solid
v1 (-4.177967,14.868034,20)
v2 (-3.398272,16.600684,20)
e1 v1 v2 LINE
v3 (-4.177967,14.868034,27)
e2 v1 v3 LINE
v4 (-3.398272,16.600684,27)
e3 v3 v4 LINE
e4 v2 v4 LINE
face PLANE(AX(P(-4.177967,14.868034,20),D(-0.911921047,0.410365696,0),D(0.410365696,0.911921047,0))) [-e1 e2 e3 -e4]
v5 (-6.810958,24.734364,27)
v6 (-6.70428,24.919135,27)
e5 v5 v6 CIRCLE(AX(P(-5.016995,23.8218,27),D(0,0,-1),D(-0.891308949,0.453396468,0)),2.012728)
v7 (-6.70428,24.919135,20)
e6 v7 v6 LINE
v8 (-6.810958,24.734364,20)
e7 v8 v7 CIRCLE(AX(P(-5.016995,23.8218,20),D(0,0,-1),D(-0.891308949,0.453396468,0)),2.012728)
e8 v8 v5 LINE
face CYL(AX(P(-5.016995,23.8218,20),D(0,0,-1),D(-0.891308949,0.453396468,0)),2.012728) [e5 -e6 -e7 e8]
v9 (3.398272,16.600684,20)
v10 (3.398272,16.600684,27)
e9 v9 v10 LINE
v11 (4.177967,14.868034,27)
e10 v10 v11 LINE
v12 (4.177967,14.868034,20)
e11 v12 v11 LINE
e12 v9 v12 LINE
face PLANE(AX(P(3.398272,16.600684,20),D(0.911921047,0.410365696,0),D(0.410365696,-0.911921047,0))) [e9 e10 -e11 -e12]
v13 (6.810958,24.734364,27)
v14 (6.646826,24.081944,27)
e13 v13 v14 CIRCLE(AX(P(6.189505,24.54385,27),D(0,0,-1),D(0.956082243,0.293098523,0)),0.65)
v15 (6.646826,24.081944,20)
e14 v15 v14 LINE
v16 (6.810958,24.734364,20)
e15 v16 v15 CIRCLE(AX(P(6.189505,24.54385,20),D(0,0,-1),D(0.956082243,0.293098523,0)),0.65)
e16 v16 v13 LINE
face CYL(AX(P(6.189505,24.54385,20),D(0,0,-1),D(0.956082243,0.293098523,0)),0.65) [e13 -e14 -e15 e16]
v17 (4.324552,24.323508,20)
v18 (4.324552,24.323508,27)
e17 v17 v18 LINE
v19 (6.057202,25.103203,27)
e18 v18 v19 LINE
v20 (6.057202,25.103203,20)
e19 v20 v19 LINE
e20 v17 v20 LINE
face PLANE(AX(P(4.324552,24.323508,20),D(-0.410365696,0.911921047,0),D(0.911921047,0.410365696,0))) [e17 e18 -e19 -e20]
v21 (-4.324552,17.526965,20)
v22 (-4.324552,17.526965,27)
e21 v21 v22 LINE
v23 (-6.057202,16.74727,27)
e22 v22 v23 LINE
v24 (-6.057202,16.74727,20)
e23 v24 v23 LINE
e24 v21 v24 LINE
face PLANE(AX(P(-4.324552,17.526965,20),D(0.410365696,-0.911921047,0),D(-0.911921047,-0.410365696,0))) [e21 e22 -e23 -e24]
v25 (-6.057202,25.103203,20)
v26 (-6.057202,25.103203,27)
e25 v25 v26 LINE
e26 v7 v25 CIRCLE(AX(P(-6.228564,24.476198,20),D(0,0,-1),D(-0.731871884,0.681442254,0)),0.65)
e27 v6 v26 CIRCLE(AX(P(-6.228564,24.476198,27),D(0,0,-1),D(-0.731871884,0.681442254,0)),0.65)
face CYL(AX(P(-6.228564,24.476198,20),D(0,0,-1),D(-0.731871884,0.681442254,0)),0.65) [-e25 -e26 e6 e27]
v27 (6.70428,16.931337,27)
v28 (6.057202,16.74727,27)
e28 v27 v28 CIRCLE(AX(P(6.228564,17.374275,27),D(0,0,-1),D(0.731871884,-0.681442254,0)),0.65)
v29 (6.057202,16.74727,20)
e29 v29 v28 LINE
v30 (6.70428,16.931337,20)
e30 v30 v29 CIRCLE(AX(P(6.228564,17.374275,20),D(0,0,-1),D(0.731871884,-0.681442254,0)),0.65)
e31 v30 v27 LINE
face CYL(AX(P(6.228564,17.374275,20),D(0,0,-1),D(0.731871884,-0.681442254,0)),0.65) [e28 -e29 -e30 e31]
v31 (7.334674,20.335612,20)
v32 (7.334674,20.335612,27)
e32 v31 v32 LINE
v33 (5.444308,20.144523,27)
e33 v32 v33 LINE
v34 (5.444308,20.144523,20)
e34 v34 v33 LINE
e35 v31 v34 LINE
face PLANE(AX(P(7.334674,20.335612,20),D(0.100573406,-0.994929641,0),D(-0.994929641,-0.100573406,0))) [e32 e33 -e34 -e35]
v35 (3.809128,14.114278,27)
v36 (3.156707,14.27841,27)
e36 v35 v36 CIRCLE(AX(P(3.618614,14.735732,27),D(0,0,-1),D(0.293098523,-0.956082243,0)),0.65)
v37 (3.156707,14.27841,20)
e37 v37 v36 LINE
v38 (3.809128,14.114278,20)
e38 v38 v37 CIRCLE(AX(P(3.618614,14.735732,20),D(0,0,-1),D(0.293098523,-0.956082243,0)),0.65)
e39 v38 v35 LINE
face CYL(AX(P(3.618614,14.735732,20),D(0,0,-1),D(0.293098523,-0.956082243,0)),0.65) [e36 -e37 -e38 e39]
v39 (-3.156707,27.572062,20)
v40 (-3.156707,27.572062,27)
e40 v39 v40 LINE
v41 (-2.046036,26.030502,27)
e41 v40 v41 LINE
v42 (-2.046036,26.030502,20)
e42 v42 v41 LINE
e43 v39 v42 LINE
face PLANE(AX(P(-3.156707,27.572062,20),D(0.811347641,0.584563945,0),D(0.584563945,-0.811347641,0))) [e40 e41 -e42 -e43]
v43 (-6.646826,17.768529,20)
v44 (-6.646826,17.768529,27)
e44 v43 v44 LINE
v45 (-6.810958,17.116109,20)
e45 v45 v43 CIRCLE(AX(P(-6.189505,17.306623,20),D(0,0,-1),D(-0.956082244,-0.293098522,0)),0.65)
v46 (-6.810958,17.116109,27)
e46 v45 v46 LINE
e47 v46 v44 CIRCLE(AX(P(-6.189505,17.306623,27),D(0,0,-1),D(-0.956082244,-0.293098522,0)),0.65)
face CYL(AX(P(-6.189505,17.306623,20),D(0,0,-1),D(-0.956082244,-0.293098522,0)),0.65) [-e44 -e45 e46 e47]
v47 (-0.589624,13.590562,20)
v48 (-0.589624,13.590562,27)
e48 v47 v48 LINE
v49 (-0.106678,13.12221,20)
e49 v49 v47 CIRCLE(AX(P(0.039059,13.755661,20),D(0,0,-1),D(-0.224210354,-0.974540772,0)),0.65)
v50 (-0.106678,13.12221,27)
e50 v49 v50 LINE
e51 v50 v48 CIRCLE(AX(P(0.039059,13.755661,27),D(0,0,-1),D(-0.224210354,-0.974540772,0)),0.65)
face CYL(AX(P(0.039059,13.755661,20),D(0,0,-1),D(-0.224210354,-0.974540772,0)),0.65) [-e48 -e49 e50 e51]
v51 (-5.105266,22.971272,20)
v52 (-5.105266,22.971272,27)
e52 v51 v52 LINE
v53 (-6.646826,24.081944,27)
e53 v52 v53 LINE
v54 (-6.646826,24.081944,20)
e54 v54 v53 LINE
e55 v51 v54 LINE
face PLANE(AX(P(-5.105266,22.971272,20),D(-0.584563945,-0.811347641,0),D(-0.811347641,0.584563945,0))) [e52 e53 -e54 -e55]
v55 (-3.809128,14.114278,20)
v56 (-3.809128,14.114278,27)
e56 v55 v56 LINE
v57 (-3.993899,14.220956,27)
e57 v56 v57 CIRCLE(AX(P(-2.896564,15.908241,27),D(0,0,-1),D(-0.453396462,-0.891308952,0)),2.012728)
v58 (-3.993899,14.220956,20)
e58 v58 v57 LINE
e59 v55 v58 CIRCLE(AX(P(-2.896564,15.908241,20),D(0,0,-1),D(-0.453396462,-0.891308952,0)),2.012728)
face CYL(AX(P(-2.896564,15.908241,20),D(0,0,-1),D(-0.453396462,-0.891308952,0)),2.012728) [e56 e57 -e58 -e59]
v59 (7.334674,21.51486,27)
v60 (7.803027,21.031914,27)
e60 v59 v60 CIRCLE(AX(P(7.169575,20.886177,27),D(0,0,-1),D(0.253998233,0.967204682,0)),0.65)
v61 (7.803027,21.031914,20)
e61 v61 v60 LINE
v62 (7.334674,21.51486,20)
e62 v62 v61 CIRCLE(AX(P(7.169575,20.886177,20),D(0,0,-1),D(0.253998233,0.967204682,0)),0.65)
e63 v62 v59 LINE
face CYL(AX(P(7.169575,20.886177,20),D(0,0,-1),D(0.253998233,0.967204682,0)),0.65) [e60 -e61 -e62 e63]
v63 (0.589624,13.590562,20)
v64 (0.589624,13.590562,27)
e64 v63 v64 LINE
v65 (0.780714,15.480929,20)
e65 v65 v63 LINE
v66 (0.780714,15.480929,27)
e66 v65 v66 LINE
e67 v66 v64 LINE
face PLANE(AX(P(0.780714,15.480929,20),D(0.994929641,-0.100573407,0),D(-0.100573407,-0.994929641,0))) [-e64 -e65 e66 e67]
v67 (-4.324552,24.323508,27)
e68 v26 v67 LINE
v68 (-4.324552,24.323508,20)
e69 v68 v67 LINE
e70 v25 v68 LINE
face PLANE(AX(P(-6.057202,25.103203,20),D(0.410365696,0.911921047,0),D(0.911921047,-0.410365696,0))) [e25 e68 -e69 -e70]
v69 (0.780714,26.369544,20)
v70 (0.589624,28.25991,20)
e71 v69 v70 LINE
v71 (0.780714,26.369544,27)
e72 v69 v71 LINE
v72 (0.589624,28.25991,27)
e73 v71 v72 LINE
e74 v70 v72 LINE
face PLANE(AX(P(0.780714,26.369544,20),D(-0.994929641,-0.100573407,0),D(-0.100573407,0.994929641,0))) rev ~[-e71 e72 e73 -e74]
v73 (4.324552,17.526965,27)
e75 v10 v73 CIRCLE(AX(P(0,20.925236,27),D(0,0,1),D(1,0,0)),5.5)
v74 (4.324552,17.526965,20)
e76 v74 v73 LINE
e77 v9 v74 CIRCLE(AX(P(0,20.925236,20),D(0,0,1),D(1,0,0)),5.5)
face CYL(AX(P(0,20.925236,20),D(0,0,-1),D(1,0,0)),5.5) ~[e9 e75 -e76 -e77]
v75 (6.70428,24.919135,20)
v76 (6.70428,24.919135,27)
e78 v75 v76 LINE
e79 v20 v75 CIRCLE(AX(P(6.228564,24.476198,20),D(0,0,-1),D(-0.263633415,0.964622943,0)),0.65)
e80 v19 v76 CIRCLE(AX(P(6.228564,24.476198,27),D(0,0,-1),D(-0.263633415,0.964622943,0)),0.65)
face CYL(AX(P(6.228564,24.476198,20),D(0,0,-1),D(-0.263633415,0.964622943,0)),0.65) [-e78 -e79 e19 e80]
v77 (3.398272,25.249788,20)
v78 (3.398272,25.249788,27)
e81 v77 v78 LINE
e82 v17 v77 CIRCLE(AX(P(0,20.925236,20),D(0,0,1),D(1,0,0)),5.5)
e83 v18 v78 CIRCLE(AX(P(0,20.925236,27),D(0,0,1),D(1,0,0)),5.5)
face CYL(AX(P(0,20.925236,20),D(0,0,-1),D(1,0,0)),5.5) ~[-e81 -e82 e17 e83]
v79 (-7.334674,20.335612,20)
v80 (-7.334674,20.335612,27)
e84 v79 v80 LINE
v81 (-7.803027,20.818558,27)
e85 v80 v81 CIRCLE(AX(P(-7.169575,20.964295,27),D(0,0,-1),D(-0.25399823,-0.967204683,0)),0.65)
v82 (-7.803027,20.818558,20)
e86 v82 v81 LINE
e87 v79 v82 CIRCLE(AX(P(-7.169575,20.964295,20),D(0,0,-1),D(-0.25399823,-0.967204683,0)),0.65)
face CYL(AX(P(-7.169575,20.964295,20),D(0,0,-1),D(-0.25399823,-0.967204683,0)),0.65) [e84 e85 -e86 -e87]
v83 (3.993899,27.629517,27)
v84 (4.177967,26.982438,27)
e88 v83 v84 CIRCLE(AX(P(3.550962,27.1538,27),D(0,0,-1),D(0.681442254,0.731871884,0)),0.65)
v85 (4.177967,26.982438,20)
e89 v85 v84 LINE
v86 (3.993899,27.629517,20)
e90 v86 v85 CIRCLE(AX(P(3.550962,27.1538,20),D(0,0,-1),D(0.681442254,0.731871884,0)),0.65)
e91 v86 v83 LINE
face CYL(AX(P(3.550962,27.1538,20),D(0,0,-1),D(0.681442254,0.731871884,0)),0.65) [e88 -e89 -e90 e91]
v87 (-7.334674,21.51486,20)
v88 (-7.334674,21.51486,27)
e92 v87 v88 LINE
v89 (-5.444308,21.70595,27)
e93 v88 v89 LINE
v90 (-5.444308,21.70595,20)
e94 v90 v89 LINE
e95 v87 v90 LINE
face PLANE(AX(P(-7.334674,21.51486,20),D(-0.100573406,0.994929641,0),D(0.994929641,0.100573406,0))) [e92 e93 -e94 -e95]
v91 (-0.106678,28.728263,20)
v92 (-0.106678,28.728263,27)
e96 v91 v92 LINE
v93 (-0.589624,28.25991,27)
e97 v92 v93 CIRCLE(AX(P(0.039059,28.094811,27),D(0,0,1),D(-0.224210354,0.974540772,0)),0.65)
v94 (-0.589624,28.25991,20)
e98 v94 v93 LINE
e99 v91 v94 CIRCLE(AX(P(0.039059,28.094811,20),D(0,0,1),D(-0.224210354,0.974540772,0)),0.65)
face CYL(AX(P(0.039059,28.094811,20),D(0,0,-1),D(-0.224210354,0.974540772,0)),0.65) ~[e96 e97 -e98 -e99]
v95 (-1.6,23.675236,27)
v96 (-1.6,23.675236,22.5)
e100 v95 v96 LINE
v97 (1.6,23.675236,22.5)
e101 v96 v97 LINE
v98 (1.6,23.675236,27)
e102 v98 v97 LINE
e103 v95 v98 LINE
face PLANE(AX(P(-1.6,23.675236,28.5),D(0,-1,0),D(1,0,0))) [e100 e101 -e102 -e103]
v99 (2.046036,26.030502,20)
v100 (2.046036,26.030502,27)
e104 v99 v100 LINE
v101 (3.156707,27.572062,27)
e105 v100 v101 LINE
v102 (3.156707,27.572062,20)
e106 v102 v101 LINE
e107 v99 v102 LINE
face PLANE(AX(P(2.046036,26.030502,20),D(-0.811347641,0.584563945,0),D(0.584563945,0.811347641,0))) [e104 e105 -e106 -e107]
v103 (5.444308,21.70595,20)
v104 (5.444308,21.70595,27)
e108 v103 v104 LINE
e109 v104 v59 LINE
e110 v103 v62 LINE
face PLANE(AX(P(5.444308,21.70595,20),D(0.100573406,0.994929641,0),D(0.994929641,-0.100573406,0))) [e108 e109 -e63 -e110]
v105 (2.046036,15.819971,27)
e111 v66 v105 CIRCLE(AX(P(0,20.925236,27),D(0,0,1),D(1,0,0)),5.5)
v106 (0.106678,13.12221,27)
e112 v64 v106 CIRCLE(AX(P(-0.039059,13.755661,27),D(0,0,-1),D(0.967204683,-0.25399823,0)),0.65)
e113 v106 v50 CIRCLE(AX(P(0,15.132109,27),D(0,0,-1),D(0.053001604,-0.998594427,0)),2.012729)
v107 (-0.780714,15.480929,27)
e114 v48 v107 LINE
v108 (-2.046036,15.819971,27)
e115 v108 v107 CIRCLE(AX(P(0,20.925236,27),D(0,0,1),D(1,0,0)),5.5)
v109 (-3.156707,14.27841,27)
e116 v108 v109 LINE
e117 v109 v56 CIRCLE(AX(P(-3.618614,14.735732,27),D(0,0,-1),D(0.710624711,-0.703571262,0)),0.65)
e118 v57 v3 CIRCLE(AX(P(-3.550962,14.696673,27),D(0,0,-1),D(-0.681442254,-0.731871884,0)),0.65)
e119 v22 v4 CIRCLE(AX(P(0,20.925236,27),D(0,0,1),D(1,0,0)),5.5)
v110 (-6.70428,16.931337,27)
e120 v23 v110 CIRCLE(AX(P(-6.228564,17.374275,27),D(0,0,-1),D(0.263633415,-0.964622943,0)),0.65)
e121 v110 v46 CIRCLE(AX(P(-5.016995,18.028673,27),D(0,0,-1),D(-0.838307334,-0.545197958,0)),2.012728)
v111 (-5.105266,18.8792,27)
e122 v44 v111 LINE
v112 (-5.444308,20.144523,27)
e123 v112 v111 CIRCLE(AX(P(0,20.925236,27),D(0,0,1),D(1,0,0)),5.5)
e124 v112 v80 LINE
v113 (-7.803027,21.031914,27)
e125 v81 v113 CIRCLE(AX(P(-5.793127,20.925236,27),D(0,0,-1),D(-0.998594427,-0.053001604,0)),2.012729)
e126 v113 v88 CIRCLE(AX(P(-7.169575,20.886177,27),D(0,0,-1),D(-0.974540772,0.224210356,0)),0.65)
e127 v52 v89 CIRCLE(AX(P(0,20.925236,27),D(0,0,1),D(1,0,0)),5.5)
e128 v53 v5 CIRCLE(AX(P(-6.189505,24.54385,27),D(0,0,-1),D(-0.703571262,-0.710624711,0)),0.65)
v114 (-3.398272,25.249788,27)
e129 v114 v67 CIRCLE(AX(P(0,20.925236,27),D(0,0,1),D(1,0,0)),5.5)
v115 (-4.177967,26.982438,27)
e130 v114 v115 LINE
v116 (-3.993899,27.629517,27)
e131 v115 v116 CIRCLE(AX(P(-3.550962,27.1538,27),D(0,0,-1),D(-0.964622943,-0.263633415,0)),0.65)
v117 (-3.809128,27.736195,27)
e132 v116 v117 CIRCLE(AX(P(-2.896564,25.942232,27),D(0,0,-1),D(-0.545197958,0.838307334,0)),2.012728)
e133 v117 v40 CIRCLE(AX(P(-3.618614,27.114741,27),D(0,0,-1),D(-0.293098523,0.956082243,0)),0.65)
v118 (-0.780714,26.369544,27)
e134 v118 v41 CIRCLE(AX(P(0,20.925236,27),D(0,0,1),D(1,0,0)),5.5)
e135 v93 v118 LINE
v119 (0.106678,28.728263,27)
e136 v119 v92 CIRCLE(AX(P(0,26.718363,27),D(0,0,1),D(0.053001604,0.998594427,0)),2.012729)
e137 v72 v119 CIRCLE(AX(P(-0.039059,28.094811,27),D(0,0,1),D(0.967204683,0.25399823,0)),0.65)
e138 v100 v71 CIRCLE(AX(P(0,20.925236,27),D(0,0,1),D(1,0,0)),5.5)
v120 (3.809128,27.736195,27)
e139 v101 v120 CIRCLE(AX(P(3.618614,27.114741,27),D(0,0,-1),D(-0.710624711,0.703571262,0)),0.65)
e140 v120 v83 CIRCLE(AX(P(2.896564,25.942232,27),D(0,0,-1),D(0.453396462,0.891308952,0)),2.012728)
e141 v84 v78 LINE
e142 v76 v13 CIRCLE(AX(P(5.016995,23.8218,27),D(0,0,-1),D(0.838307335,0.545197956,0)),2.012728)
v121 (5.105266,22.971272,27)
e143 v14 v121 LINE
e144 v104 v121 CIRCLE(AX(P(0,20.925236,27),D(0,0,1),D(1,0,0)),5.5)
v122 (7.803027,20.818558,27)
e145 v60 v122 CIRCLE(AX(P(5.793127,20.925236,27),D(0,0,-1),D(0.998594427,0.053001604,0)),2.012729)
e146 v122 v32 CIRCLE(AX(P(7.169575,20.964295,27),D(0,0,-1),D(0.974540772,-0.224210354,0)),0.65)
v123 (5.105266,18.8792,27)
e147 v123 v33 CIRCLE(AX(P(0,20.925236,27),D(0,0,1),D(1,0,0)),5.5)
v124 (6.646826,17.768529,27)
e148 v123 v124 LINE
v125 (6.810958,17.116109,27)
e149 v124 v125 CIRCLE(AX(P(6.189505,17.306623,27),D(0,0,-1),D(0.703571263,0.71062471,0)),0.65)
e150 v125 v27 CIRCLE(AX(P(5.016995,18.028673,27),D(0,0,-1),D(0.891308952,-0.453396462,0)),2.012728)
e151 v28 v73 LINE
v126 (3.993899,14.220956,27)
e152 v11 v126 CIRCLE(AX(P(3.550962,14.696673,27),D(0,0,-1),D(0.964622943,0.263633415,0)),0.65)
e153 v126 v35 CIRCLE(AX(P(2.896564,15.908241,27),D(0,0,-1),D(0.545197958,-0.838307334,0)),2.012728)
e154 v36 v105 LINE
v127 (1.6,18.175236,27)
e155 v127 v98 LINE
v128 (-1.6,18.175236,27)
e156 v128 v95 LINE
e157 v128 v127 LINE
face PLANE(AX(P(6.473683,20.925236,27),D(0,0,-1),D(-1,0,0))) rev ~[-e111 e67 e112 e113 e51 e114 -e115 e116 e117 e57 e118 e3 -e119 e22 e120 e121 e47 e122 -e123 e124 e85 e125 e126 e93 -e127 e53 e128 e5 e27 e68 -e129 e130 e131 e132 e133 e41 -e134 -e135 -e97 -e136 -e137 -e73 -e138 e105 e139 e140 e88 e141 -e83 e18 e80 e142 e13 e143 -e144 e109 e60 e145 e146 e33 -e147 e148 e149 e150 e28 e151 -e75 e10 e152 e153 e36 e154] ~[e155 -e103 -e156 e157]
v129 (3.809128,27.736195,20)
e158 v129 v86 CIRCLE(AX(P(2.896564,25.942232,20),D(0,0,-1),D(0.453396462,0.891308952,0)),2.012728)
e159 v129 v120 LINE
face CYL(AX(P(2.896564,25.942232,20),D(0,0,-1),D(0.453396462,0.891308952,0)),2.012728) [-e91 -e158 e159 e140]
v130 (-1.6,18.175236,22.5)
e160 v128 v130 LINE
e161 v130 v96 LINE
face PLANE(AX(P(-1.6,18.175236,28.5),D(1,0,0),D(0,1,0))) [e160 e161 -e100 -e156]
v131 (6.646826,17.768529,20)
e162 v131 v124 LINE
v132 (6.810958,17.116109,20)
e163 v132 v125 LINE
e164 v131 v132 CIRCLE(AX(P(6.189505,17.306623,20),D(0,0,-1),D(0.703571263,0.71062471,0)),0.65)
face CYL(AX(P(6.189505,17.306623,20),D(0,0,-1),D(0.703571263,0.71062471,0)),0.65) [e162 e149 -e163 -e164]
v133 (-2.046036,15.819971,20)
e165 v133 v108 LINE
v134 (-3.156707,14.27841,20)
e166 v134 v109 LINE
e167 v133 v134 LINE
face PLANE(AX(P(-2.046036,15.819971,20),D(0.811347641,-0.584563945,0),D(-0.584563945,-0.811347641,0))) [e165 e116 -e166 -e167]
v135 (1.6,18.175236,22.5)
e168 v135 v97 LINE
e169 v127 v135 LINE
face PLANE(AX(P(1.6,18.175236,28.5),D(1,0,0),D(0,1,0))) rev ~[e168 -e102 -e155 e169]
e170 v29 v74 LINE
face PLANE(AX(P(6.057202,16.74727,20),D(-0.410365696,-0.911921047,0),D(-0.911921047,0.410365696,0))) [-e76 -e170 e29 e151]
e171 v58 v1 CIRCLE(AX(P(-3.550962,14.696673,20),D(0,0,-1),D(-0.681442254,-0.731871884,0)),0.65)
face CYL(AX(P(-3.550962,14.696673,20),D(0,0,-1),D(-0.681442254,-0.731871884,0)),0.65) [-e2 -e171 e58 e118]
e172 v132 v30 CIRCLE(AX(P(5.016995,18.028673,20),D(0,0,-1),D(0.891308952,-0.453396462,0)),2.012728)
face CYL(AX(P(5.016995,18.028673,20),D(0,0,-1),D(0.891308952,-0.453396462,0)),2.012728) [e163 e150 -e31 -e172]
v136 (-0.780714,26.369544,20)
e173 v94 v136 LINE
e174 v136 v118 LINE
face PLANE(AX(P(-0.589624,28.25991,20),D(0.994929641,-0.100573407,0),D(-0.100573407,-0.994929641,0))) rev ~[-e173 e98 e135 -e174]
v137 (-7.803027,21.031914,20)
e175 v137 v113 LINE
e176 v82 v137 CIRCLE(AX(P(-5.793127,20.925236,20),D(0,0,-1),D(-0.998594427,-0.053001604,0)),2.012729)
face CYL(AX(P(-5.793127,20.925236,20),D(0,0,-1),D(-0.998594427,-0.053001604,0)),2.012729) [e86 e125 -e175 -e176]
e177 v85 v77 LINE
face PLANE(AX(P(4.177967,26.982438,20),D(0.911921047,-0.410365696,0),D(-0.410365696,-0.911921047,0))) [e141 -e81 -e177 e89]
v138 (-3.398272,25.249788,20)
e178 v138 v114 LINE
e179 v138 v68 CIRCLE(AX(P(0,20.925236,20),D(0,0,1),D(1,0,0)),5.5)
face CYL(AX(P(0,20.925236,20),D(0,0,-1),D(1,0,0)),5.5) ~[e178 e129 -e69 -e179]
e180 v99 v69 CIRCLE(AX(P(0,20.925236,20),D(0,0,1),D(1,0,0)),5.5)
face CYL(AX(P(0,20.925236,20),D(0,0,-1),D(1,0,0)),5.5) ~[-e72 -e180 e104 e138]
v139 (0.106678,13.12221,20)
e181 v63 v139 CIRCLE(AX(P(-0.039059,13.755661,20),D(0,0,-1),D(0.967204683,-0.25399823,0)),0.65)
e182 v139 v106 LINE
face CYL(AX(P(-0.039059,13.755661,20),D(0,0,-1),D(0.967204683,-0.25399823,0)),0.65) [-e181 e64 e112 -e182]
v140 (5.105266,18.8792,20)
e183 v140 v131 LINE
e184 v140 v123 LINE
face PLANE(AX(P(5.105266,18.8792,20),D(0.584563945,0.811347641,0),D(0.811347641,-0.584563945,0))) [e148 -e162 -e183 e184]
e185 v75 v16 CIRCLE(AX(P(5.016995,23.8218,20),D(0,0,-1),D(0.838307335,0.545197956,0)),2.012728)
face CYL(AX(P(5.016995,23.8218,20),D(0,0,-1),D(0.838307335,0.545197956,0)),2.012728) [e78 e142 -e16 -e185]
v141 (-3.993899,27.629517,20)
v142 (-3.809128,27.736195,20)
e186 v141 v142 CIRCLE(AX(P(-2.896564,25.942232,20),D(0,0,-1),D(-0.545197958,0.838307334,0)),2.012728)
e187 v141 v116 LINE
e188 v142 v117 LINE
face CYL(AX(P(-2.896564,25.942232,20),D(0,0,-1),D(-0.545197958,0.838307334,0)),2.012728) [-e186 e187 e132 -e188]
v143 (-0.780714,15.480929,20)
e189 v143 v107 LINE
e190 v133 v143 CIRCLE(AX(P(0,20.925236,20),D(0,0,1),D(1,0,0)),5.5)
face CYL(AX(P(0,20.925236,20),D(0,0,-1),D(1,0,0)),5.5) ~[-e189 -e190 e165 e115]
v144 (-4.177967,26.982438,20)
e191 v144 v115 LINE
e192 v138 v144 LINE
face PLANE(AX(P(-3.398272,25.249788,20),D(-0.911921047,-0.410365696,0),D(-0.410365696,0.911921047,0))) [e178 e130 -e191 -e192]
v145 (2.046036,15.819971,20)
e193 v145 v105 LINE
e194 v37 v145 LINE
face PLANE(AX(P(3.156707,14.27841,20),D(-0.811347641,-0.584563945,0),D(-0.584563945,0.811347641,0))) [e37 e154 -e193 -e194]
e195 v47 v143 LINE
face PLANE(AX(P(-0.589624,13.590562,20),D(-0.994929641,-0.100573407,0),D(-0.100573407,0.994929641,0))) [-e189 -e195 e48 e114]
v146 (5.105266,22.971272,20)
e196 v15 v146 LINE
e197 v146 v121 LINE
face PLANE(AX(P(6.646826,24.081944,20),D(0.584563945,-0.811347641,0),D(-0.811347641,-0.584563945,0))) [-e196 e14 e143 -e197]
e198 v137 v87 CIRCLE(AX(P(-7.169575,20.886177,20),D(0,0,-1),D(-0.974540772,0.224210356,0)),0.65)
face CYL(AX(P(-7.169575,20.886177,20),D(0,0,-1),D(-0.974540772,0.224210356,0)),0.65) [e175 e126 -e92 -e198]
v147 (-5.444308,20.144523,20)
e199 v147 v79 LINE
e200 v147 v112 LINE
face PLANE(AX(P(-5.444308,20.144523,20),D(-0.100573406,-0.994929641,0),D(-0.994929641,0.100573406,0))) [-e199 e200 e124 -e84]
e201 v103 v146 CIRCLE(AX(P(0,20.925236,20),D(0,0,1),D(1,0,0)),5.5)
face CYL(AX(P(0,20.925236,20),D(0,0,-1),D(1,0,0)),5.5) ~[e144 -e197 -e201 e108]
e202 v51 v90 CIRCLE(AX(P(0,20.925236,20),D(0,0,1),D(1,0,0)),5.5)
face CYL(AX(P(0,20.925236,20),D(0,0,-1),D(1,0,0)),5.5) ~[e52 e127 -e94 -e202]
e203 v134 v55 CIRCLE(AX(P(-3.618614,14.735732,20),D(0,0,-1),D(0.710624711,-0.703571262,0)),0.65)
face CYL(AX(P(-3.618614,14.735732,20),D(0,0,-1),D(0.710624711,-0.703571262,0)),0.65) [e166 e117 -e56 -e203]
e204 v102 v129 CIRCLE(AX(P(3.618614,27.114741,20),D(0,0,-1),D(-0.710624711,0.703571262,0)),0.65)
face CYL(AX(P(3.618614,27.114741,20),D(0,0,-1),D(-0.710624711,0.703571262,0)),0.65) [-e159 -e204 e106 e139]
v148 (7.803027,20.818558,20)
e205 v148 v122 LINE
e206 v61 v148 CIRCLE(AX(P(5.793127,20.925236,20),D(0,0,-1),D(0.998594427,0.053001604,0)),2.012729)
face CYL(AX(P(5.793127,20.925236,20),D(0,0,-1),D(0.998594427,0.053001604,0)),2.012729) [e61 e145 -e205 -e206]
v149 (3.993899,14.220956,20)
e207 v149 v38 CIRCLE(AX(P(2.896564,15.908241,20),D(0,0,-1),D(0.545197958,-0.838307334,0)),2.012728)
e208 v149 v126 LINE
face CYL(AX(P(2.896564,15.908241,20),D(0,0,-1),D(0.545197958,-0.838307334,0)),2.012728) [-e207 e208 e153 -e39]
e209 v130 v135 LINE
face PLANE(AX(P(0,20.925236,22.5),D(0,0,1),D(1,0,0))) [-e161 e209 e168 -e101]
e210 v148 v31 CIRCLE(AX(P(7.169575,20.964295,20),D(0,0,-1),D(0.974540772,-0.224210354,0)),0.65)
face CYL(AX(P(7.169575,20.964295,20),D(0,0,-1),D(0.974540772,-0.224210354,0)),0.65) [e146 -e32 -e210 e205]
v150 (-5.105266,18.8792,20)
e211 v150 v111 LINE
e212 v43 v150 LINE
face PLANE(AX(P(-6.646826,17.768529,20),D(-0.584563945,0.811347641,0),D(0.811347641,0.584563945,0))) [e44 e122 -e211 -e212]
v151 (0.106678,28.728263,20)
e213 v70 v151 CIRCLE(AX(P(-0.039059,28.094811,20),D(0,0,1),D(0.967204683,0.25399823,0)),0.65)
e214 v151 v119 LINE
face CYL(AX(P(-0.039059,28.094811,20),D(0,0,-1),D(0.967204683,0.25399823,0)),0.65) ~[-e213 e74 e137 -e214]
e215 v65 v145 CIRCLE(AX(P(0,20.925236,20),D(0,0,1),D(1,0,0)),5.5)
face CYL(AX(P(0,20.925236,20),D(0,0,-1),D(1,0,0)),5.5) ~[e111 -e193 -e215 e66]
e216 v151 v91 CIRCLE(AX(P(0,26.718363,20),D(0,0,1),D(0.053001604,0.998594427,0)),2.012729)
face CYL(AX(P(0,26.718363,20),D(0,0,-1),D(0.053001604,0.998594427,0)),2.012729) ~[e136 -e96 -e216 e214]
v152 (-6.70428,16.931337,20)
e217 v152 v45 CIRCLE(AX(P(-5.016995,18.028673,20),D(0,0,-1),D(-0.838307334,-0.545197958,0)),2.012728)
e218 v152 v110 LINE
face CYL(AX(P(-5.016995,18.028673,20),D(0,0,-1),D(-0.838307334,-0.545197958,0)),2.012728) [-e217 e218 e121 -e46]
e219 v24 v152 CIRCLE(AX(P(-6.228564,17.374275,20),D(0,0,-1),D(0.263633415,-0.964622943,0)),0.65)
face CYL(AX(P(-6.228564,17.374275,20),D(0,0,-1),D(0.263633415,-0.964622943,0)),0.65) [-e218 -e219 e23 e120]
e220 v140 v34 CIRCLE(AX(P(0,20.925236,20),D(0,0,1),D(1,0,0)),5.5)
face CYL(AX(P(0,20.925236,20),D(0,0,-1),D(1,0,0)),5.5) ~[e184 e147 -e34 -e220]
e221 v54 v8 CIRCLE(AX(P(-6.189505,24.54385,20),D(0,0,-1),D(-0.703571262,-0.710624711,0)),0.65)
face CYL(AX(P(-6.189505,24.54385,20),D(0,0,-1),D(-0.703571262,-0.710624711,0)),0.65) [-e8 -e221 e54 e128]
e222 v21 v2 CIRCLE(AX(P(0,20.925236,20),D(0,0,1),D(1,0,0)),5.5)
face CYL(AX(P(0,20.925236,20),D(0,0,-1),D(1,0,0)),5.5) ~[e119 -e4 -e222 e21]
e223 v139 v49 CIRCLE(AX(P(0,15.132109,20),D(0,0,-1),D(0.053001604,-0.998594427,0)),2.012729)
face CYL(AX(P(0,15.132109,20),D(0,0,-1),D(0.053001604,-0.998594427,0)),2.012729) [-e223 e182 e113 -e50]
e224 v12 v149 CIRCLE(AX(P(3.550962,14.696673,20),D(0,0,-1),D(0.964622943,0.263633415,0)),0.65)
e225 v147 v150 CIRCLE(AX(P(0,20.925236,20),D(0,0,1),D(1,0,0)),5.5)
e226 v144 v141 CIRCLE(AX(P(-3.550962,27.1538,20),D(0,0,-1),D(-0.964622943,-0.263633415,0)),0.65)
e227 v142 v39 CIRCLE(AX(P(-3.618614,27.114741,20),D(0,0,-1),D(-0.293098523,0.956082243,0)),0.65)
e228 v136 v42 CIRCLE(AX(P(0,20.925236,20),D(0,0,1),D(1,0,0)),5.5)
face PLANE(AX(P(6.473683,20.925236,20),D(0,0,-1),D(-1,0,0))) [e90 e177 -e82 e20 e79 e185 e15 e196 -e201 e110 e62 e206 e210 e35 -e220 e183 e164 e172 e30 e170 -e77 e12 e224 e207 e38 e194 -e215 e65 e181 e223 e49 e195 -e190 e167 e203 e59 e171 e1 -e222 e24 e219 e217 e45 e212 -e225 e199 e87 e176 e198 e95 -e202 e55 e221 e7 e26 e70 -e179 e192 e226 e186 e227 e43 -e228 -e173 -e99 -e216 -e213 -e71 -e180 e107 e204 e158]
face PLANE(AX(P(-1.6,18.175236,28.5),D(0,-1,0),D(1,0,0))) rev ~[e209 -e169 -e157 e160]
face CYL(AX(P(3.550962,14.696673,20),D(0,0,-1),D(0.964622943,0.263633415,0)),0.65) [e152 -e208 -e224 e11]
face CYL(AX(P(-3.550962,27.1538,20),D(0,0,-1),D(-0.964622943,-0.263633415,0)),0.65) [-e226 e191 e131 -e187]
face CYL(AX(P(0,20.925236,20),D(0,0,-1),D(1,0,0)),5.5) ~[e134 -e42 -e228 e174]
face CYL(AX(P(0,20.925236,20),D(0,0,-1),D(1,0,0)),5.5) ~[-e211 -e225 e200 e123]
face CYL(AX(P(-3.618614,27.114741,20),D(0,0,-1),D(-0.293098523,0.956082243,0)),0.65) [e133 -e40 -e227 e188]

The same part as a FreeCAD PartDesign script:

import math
import FreeCAD as App
import Part
import Sketcher
from FreeCAD import Vector


def add_polygon(sketch, points):
    """Adds a closed chain of lines whose ends are joined by coincident constraints."""
    first, n = sketch.GeometryCount, len(points)
    for a, b in zip(points, points[1:] + points[:1]):
        sketch.addGeometry(Part.LineSegment(App.Vector(*a, 0), App.Vector(*b, 0)), False)
    for i in range(n):
        sketch.addConstraint(Sketcher.Constraint("Coincident", first + i, 2, first + (i + 1) % n, 1))

doc = App.newDocument("Part")
body = doc.addObject("PartDesign::Body", "Body")

sketch1 = body.newObject("Sketcher::SketchObject", "Sketch")
sketch1.AttachmentSupport = (doc.getObject("XY_Plane"), [""])
sketch1.MapMode = "FlatFace"
sketch1.AttachmentOffset = App.Placement(Vector(0, 0, 20), App.Rotation())
sketch1.addGeometry(Part.Circle(Vector(0, 21, 0), Vector(0, 0, 1), 6), False)
sketch1.addConstraint([
    Sketcher.Constraint("PointOnObject", 0, 3, -2),
    Sketcher.Constraint("Diameter", 0, 11.0),
    Sketcher.Constraint("DistanceY", -1, 1, 0, 3, 20.925236),
])
pad1 = body.newObject("PartDesign::Pad", "Pad")
pad1.Profile = sketch1
pad1.Length = 7

sketch2 = body.newObject("Sketcher::SketchObject", "Sketch001")
sketch2.AttachmentSupport = (doc.getObject("XY_Plane"), [""])
sketch2.MapMode = "FlatFace"
sketch2.AttachmentOffset = App.Placement(Vector(0, 0, 28.5), App.Rotation())
add_polygon(sketch2, [(-1.6, 23.7), (-1.6, 18.2), (1.6, 18.2), (1.6, 23.7)])
sketch2.addConstraint([
    Sketcher.Constraint("Vertical", 0),
    Sketcher.Constraint("Horizontal", 1),
    Sketcher.Constraint("Vertical", 2),
    Sketcher.Constraint("Horizontal", 3),
    Sketcher.Constraint("DistanceX", 1, 1, 1, 2, 3.2),
    Sketcher.Constraint("DistanceY", 0, 2, 0, 1, 5.5),
    Sketcher.Constraint("DistanceX", 0, 2, -1, 1, 1.6),
    Sketcher.Constraint("DistanceY", -1, 1, 0, 2, 18.175236),
])
pocket1 = body.newObject("PartDesign::Pocket", "Pocket")
pocket1.Profile = sketch2
pocket1.Length = 6

sketch3 = body.newObject("Sketcher::SketchObject", "Sketch002")
sketch3.AttachmentSupport = (doc.getObject("XY_Plane"), [""])
sketch3.MapMode = "FlatFace"
sketch3.AttachmentOffset = App.Placement(Vector(0, 0, 20), App.Rotation())
sketch3.addGeometry([
    Part.LineSegment(Vector(-0.59, 28.26, 0), Vector(-0.78, 26.37, 0)),
    Part.ArcOfCircle(Part.Circle(Vector(0, 20.93, 0), Vector(0, 0, 1), 5.5), math.radians(81.84), math.radians(98.16)),
    Part.LineSegment(Vector(0.78, 26.37, 0), Vector(0.59, 28.26, 0)),
    Part.ArcOfCircle(Part.Circle(Vector(-0.04, 28.09, 0), Vector(0, 0, 1), 0.65), math.radians(15), math.radians(77)),
    Part.ArcOfCircle(Part.Circle(Vector(0, 26.72, 0), Vector(0, 0, 1), 2.01), math.radians(86.96), math.radians(93.04)),
    Part.ArcOfCircle(Part.Circle(Vector(0.04, 28.09, 0), Vector(0, 0, 1), 0.65), math.radians(103), math.radians(165)),
    Part.LineSegment(Vector(3.4, 25.25, 0), Vector(4.18, 26.98, 0)),
    Part.ArcOfCircle(Part.Circle(Vector(3.55, 27.15, 0), Vector(0, 0, 1), 0.65), math.radians(-15), math.radians(47)),
    Part.ArcOfCircle(Part.Circle(Vector(2.9, 25.94, 0), Vector(0, 0, 1), 2.01), math.radians(56.96), math.radians(63.04)),
    Part.ArcOfCircle(Part.Circle(Vector(3.62, 27.11, 0), Vector(0, 0, 1), 0.65), math.radians(73), math.radians(135)),
    Part.LineSegment(Vector(3.16, 27.57, 0), Vector(2.05, 26.03, 0)),
    Part.ArcOfCircle(Part.Circle(Vector(0, 20.93, 0), Vector(0, 0, 1), 5.5), math.radians(51.84), math.radians(68.16)),
    Part.LineSegment(Vector(5.11, 22.97, 0), Vector(6.65, 24.08, 0)),
    Part.ArcOfCircle(Part.Circle(Vector(6.19, 24.54, 0), Vector(0, 0, 1), 0.65), math.radians(-45), math.radians(17)),
    Part.ArcOfCircle(Part.Circle(Vector(5.02, 23.82, 0), Vector(0, 0, 1), 2.01), math.radians(26.96), math.radians(33.04)),
    Part.ArcOfCircle(Part.Circle(Vector(6.23, 24.48, 0), Vector(0, 0, 1), 0.65), math.radians(43), math.radians(105)),
    Part.LineSegment(Vector(6.06, 25.1, 0), Vector(4.32, 24.32, 0)),
    Part.ArcOfCircle(Part.Circle(Vector(0, 20.93, 0), Vector(0, 0, 1), 5.5), math.radians(21.84), math.radians(38.16)),
    Part.LineSegment(Vector(5.44, 20.14, 0), Vector(7.33, 20.34, 0)),
    Part.ArcOfCircle(Part.Circle(Vector(7.17, 20.96, 0), Vector(0, 0, 1), 0.65), math.radians(-75), math.radians(-13)),
    Part.ArcOfCircle(Part.Circle(Vector(5.79, 20.93, 0), Vector(0, 0, 1), 2.01), math.radians(-3.04), math.radians(3.04)),
    Part.ArcOfCircle(Part.Circle(Vector(7.17, 20.89, 0), Vector(0, 0, 1), 0.65), math.radians(13), math.radians(75)),
    Part.LineSegment(Vector(7.33, 21.51, 0), Vector(5.44, 21.71, 0)),
    Part.ArcOfCircle(Part.Circle(Vector(0, 20.93, 0), Vector(0, 0, 1), 5.5), math.radians(-8.16), math.radians(8.16)),
    Part.LineSegment(Vector(4.32, 17.53, 0), Vector(6.06, 16.75, 0)),
    Part.ArcOfCircle(Part.Circle(Vector(6.23, 17.37, 0), Vector(0, 0, 1), 0.65), math.radians(-105), math.radians(-43)),
    Part.ArcOfCircle(Part.Circle(Vector(5.02, 18.03, 0), Vector(0, 0, 1), 2.01), math.radians(-33.04), math.radians(-26.96)),
    Part.ArcOfCircle(Part.Circle(Vector(6.19, 17.31, 0), Vector(0, 0, 1), 0.65), math.radians(-17), math.radians(45)),
    Part.LineSegment(Vector(6.65, 17.77, 0), Vector(5.11, 18.88, 0)),
    Part.ArcOfCircle(Part.Circle(Vector(0, 20.93, 0), Vector(0, 0, 1), 5.5), math.radians(-38.16), math.radians(-21.84)),
    Part.LineSegment(Vector(2.05, 15.82, 0), Vector(3.16, 14.28, 0)),
    Part.ArcOfCircle(Part.Circle(Vector(3.62, 14.74, 0), Vector(0, 0, 1), 0.65), math.radians(-135), math.radians(-73)),
    Part.ArcOfCircle(Part.Circle(Vector(2.9, 15.91, 0), Vector(0, 0, 1), 2.01), math.radians(-63.04), math.radians(-56.96)),
    Part.ArcOfCircle(Part.Circle(Vector(3.55, 14.7, 0), Vector(0, 0, 1), 0.65), math.radians(-47), math.radians(15)),
    Part.LineSegment(Vector(4.18, 14.87, 0), Vector(3.4, 16.6, 0)),
    Part.ArcOfCircle(Part.Circle(Vector(0, 20.93, 0), Vector(0, 0, 1), 5.5), math.radians(-68.16), math.radians(-51.84)),
    Part.LineSegment(Vector(-0.78, 15.48, 0), Vector(-0.59, 13.59, 0)),
    Part.ArcOfCircle(Part.Circle(Vector(0.04, 13.76, 0), Vector(0, 0, 1), 0.65), math.radians(-165), math.radians(-103)),
    Part.ArcOfCircle(Part.Circle(Vector(0, 15.13, 0), Vector(0, 0, 1), 2.01), math.radians(-93.04), math.radians(-86.96)),
    Part.ArcOfCircle(Part.Circle(Vector(-0.04, 13.76, 0), Vector(0, 0, 1), 0.65), math.radians(-77), math.radians(-15)),
    Part.LineSegment(Vector(0.59, 13.59, 0), Vector(0.78, 15.48, 0)),
    Part.ArcOfCircle(Part.Circle(Vector(0, 20.93, 0), Vector(0, 0, 1), 5.5), math.radians(-98.16), math.radians(-81.84)),
    Part.LineSegment(Vector(-3.4, 16.6, 0), Vector(-4.18, 14.87, 0)),
    Part.ArcOfCircle(Part.Circle(Vector(-3.55, 14.7, 0), Vector(0, 0, 1), 0.65), math.radians(165), math.radians(227)),
    Part.ArcOfCircle(Part.Circle(Vector(-2.9, 15.91, 0), Vector(0, 0, 1), 2.01), math.radians(-123.04), math.radians(-116.96)),
    Part.ArcOfCircle(Part.Circle(Vector(-3.62, 14.74, 0), Vector(0, 0, 1), 0.65), math.radians(-107), math.radians(-45)),
    Part.LineSegment(Vector(-3.16, 14.28, 0), Vector(-2.05, 15.82, 0)),
    Part.ArcOfCircle(Part.Circle(Vector(0, 20.93, 0), Vector(0, 0, 1), 5.5), math.radians(-128.16), math.radians(-111.84)),
    Part.LineSegment(Vector(-5.11, 18.88, 0), Vector(-6.65, 17.77, 0)),
    Part.ArcOfCircle(Part.Circle(Vector(-6.19, 17.31, 0), Vector(0, 0, 1), 0.65), math.radians(135), math.radians(197)),
    Part.ArcOfCircle(Part.Circle(Vector(-5.02, 18.03, 0), Vector(0, 0, 1), 2.01), math.radians(-153.04), math.radians(-146.96)),
    Part.ArcOfCircle(Part.Circle(Vector(-6.23, 17.37, 0), Vector(0, 0, 1), 0.65), math.radians(-137), math.radians(-75)),
    Part.LineSegment(Vector(-6.06, 16.75, 0), Vector(-4.32, 17.53, 0)),
    Part.ArcOfCircle(Part.Circle(Vector(0, 20.93, 0), Vector(0, 0, 1), 5.5), math.radians(-158.16), math.radians(-141.84)),
    Part.LineSegment(Vector(-5.44, 21.71, 0), Vector(-7.33, 21.51, 0)),
    Part.ArcOfCircle(Part.Circle(Vector(-7.17, 20.89, 0), Vector(0, 0, 1), 0.65), math.radians(105), math.radians(167)),
    Part.ArcOfCircle(Part.Circle(Vector(-5.79, 20.93, 0), Vector(0, 0, 1), 2.01), math.radians(176.96), math.radians(183.04)),
    Part.ArcOfCircle(Part.Circle(Vector(-7.17, 20.96, 0), Vector(0, 0, 1), 0.65), math.radians(-167), math.radians(-105)),
    Part.LineSegment(Vector(-7.33, 20.34, 0), Vector(-5.44, 20.14, 0)),
    Part.ArcOfCircle(Part.Circle(Vector(0, 20.93, 0), Vector(0, 0, 1), 5.5), math.radians(171.84), math.radians(188.16)),
    Part.LineSegment(Vector(-4.32, 24.32, 0), Vector(-6.06, 25.1, 0)),
    Part.ArcOfCircle(Part.Circle(Vector(-6.23, 24.48, 0), Vector(0, 0, 1), 0.65), math.radians(75), math.radians(137)),
    Part.ArcOfCircle(Part.Circle(Vector(-5.02, 23.82, 0), Vector(0, 0, 1), 2.01), math.radians(146.96), math.radians(153.04)),
    Part.ArcOfCircle(Part.Circle(Vector(-6.19, 24.54, 0), Vector(0, 0, 1), 0.65), math.radians(163), math.radians(225)),
    Part.LineSegment(Vector(-6.65, 24.08, 0), Vector(-5.11, 22.97, 0)),
    Part.ArcOfCircle(Part.Circle(Vector(0, 20.93, 0), Vector(0, 0, 1), 5.5), math.radians(141.84), math.radians(158.16)),
    Part.LineSegment(Vector(-2.05, 26.03, 0), Vector(-3.16, 27.57, 0)),
    Part.ArcOfCircle(Part.Circle(Vector(-3.62, 27.11, 0), Vector(0, 0, 1), 0.65), math.radians(45), math.radians(107)),
    Part.ArcOfCircle(Part.Circle(Vector(-2.9, 25.94, 0), Vector(0, 0, 1), 2.01), math.radians(116.96), math.radians(123.04)),
    Part.ArcOfCircle(Part.Circle(Vector(-3.55, 27.15, 0), Vector(0, 0, 1), 0.65), math.radians(133), math.radians(195)),
    Part.LineSegment(Vector(-4.18, 26.98, 0), Vector(-3.4, 25.25, 0)),
    Part.ArcOfCircle(Part.Circle(Vector(0, 20.93, 0), Vector(0, 0, 1), 5.5), math.radians(111.84), math.radians(128.16)),
], False)
sketch3.addConstraint([
    Sketcher.Constraint("Coincident", 0, 2, 1, 2),
    Sketcher.Constraint("Coincident", 1, 1, 2, 1),
    Sketcher.Constraint("Coincident", 2, 2, 3, 1),
    Sketcher.Constraint("Coincident", 3, 2, 4, 1),
    Sketcher.Constraint("Coincident", 4, 2, 5, 1),
    Sketcher.Constraint("Coincident", 5, 2, 0, 1),
    Sketcher.Constraint("Coincident", 6, 2, 7, 1),
    Sketcher.Constraint("Coincident", 7, 2, 8, 1),
    Sketcher.Constraint("Coincident", 8, 2, 9, 1),
    Sketcher.Constraint("Coincident", 9, 2, 10, 1),
    Sketcher.Constraint("Coincident", 10, 2, 11, 2),
    Sketcher.Constraint("Coincident", 11, 1, 6, 1),
    Sketcher.Constraint("Coincident", 12, 2, 13, 1),
    Sketcher.Constraint("Coincident", 13, 2, 14, 1),
    Sketcher.Constraint("Coincident", 14, 2, 15, 1),
    Sketcher.Constraint("Coincident", 15, 2, 16, 1),
    Sketcher.Constraint("Coincident", 16, 2, 17, 2),
    Sketcher.Constraint("Coincident", 17, 1, 12, 1),
    Sketcher.Constraint("Coincident", 18, 2, 19, 1),
    Sketcher.Constraint("Coincident", 19, 2, 20, 1),
    Sketcher.Constraint("Coincident", 20, 2, 21, 1),
    Sketcher.Constraint("Coincident", 21, 2, 22, 1),
    Sketcher.Constraint("Coincident", 22, 2, 23, 2),
    Sketcher.Constraint("Coincident", 23, 1, 18, 1),
    Sketcher.Constraint("Coincident", 24, 2, 25, 1),
    Sketcher.Constraint("Coincident", 25, 2, 26, 1),
    Sketcher.Constraint("Coincident", 26, 2, 27, 1),
    Sketcher.Constraint("Coincident", 27, 2, 28, 1),
    Sketcher.Constraint("Coincident", 28, 2, 29, 2),
    Sketcher.Constraint("Coincident", 29, 1, 24, 1),
    Sketcher.Constraint("Coincident", 30, 2, 31, 1),
    Sketcher.Constraint("Coincident", 31, 2, 32, 1),
    Sketcher.Constraint("Coincident", 32, 2, 33, 1),
    Sketcher.Constraint("Coincident", 33, 2, 34, 1),
    Sketcher.Constraint("Coincident", 34, 2, 35, 2),
    Sketcher.Constraint("Coincident", 35, 1, 30, 1),
    Sketcher.Constraint("Coincident", 36, 2, 37, 1),
    Sketcher.Constraint("Coincident", 37, 2, 38, 1),
    Sketcher.Constraint("Coincident", 38, 2, 39, 1),
    Sketcher.Constraint("Coincident", 39, 2, 40, 1),
    Sketcher.Constraint("Coincident", 40, 2, 41, 2),
    Sketcher.Constraint("Coincident", 41, 1, 36, 1),
    Sketcher.Constraint("Coincident", 42, 2, 43, 1),
    Sketcher.Constraint("Coincident", 43, 2, 44, 1),
    Sketcher.Constraint("Coincident", 44, 2, 45, 1),
    Sketcher.Constraint("Coincident", 45, 2, 46, 1),
    Sketcher.Constraint("Coincident", 46, 2, 47, 2),
    Sketcher.Constraint("Coincident", 47, 1, 42, 1),
    Sketcher.Constraint("Coincident", 48, 2, 49, 1),
    Sketcher.Constraint("Coincident", 49, 2, 50, 1),
    Sketcher.Constraint("Coincident", 50, 2, 51, 1),
    Sketcher.Constraint("Coincident", 51, 2, 52, 1),
    Sketcher.Constraint("Coincident", 52, 2, 53, 2),
    Sketcher.Constraint("Coincident", 53, 1, 48, 1),
    Sketcher.Constraint("Coincident", 54, 2, 55, 1),
    Sketcher.Constraint("Coincident", 55, 2, 56, 1),
    Sketcher.Constraint("Coincident", 56, 2, 57, 1),
    Sketcher.Constraint("Coincident", 57, 2, 58, 1),
    Sketcher.Constraint("Coincident", 58, 2, 59, 2),
    Sketcher.Constraint("Coincident", 59, 1, 54, 1),
    Sketcher.Constraint("Coincident", 60, 2, 61, 1),
    Sketcher.Constraint("Coincident", 61, 2, 62, 1),
    Sketcher.Constraint("Coincident", 62, 2, 63, 1),
    Sketcher.Constraint("Coincident", 63, 2, 64, 1),
    Sketcher.Constraint("Coincident", 64, 2, 65, 2),
    Sketcher.Constraint("Coincident", 65, 1, 60, 1),
    Sketcher.Constraint("Coincident", 66, 2, 67, 1),
    Sketcher.Constraint("Coincident", 67, 2, 68, 1),
    Sketcher.Constraint("Coincident", 68, 2, 69, 1),
    Sketcher.Constraint("Coincident", 69, 2, 70, 1),
    Sketcher.Constraint("Coincident", 70, 2, 71, 2),
    Sketcher.Constraint("Coincident", 71, 1, 66, 1),
    Sketcher.Constraint("Coincident", 11, 3, 1, 3),
    Sketcher.Constraint("Coincident", 17, 3, 1, 3),
    Sketcher.Constraint("Coincident", 23, 3, 1, 3),
    Sketcher.Constraint("Coincident", 29, 3, 1, 3),
    Sketcher.Constraint("Coincident", 35, 3, 1, 3),
    Sketcher.Constraint("Coincident", 41, 3, 1, 3),
    Sketcher.Constraint("Coincident", 47, 3, 1, 3),
    Sketcher.Constraint("Coincident", 53, 3, 1, 3),
    Sketcher.Constraint("Coincident", 59, 3, 1, 3),
    Sketcher.Constraint("Coincident", 65, 3, 1, 3),
    Sketcher.Constraint("Coincident", 71, 3, 1, 3),
    Sketcher.Constraint("Equal", 3, 5),
    Sketcher.Constraint("Equal", 5, 7),
    Sketcher.Constraint("Equal", 4, 8),
    Sketcher.Constraint("Equal", 7, 9),
    Sketcher.Constraint("Equal", 1, 11),
    Sketcher.Constraint("Equal", 9, 13),
    Sketcher.Constraint("Equal", 8, 14),
    Sketcher.Constraint("Equal", 13, 15),
    Sketcher.Constraint("Equal", 11, 17),
    Sketcher.Constraint("Equal", 15, 19),
    Sketcher.Constraint("Equal", 14, 20),
    Sketcher.Constraint("Equal", 19, 21),
    Sketcher.Constraint("Equal", 17, 23),
    Sketcher.Constraint("Equal", 21, 25),
    Sketcher.Constraint("Equal", 20, 26),
    Sketcher.Constraint("Equal", 25, 27),
    Sketcher.Constraint("Equal", 23, 29),
    Sketcher.Constraint("Equal", 27, 31),
    Sketcher.Constraint("Equal", 26, 32),
    Sketcher.Constraint("Equal", 31, 33),
    Sketcher.Constraint("Equal", 29, 35),
    Sketcher.Constraint("Equal", 33, 37),
    Sketcher.Constraint("Equal", 32, 38),
    Sketcher.Constraint("Equal", 37, 39),
    Sketcher.Constraint("Equal", 35, 41),
    Sketcher.Constraint("Equal", 39, 43),
    Sketcher.Constraint("Equal", 38, 44),
    Sketcher.Constraint("Equal", 43, 45),
    Sketcher.Constraint("Equal", 41, 47),
    Sketcher.Constraint("Equal", 45, 49),
    Sketcher.Constraint("Equal", 44, 50),
    Sketcher.Constraint("Equal", 49, 51),
    Sketcher.Constraint("Equal", 47, 53),
    Sketcher.Constraint("Equal", 51, 55),
    Sketcher.Constraint("Equal", 50, 56),
    Sketcher.Constraint("Equal", 55, 57),
    Sketcher.Constraint("Equal", 53, 59),
    Sketcher.Constraint("Equal", 57, 61),
    Sketcher.Constraint("Equal", 56, 62),
    Sketcher.Constraint("Equal", 61, 63),
    Sketcher.Constraint("Equal", 59, 65),
    Sketcher.Constraint("Equal", 63, 67),
    Sketcher.Constraint("Equal", 62, 68),
    Sketcher.Constraint("Equal", 67, 69),
    Sketcher.Constraint("Equal", 65, 71),
    Sketcher.Constraint("Symmetric", 3, 3, 5, 3, -2),
    Sketcher.Constraint("Symmetric", 37, 3, 39, 3, -2),
    Sketcher.Constraint("Symmetric", 33, 3, 43, 3, -2),
    Sketcher.Constraint("Symmetric", 32, 3, 44, 3, -2),
    Sketcher.Constraint("Symmetric", 31, 3, 45, 3, -2),
    Sketcher.Constraint("Symmetric", 27, 3, 49, 3, -2),
    Sketcher.Constraint("Symmetric", 26, 3, 50, 3, -2),
    Sketcher.Constraint("Symmetric", 25, 3, 51, 3, -2),
    Sketcher.Constraint("Symmetric", 21, 3, 55, 3, -2),
    Sketcher.Constraint("Symmetric", 20, 3, 56, 3, -2),
    Sketcher.Constraint("Symmetric", 19, 3, 57, 3, -2),
    Sketcher.Constraint("Symmetric", 15, 3, 61, 3, -2),
    Sketcher.Constraint("Symmetric", 14, 3, 62, 3, -2),
    Sketcher.Constraint("Symmetric", 13, 3, 63, 3, -2),
    Sketcher.Constraint("Symmetric", 9, 3, 67, 3, -2),
    Sketcher.Constraint("Symmetric", 8, 3, 68, 3, -2),
    Sketcher.Constraint("Symmetric", 7, 3, 69, 3, -2),
    Sketcher.Constraint("Symmetric", 0, 2, 1, 1, -2),
    Sketcher.Constraint("PointOnObject", 4, 3, -2),
    Sketcher.Constraint("PointOnObject", 38, 3, -2),
    Sketcher.Constraint("Perpendicular", 2, 18),
    Sketcher.Constraint("Perpendicular", 0, 22),
    Sketcher.Constraint("Perpendicular", 6, 24),
    Sketcher.Constraint("Perpendicular", 10, 28),
    Sketcher.Constraint("Perpendicular", 12, 30),
    Sketcher.Constraint("Perpendicular", 16, 34),
    Sketcher.Constraint("Perpendicular", 18, 36),
    Sketcher.Constraint("Perpendicular", 22, 40),
    Sketcher.Constraint("Perpendicular", 24, 42),
    Sketcher.Constraint("Perpendicular", 28, 46),
    Sketcher.Constraint("Perpendicular", 30, 48),
    Sketcher.Constraint("Perpendicular", 34, 52),
    Sketcher.Constraint("Perpendicular", 36, 54),
    Sketcher.Constraint("Perpendicular", 40, 58),
    Sketcher.Constraint("Perpendicular", 42, 60),
    Sketcher.Constraint("Perpendicular", 46, 64),
    Sketcher.Constraint("Perpendicular", 48, 66),
    Sketcher.Constraint("Perpendicular", 52, 70),
    Sketcher.Constraint("Horizontal", 17, 3, 20, 3),
    Sketcher.Constraint("Horizontal", 2, 2, 5, 2),
    Sketcher.Constraint("Horizontal", 36, 2, 39, 2),
    Sketcher.Constraint("Horizontal", 33, 2, 42, 2),
    Sketcher.Constraint("Horizontal", 30, 2, 45, 2),
    Sketcher.Constraint("Horizontal", 35, 1, 46, 2),
    Sketcher.Constraint("Horizontal", 34, 2, 47, 1),
    Sketcher.Constraint("Horizontal", 27, 2, 48, 2),
    Sketcher.Constraint("Horizontal", 24, 2, 51, 2),
    Sketcher.Constraint("Horizontal", 21, 2, 54, 2),
    Sketcher.Constraint("Horizontal", 18, 2, 57, 2),
    Sketcher.Constraint("Horizontal", 15, 2, 60, 2),
    Sketcher.Constraint("Horizontal", 12, 2, 63, 2),
    Sketcher.Constraint("Horizontal", 9, 2, 66, 2),
    Sketcher.Constraint("Horizontal", 6, 2, 69, 2),
    Sketcher.Constraint("Vertical", 19, 3, 21, 3),
    Sketcher.Constraint("Vertical", 15, 3, 25, 3),
    Sketcher.Constraint("Vertical", 14, 3, 26, 3),
    Sketcher.Constraint("Vertical", 13, 3, 27, 3),
    Sketcher.Constraint("Vertical", 9, 3, 31, 3),
    Sketcher.Constraint("Vertical", 8, 3, 32, 3),
    Sketcher.Constraint("Vertical", 7, 3, 33, 3),
    Sketcher.Constraint("Vertical", 5, 3, 37, 3),
    Sketcher.Constraint("Vertical", 19, 2, 20, 2),
    Sketcher.Constraint("Vertical", 18, 2, 21, 2),
    Sketcher.Constraint("Vertical", 15, 2, 24, 2),
    Sketcher.Constraint("Vertical", 14, 2, 25, 2),
    Sketcher.Constraint("Vertical", 13, 2, 26, 2),
    Sketcher.Constraint("Vertical", 12, 2, 27, 2),
    Sketcher.Constraint("Vertical", 17, 1, 28, 2),
    Sketcher.Constraint("Vertical", 9, 2, 30, 2),
    Sketcher.Constraint("Vertical", 8, 2, 31, 2),
    Sketcher.Constraint("Vertical", 7, 2, 32, 2),
    Sketcher.Constraint("Vertical", 6, 2, 33, 2),
    Sketcher.Constraint("Vertical", 11, 1, 34, 2),
    Sketcher.Constraint("Vertical", 5, 2, 36, 2),
    Sketcher.Constraint("Vertical", 4, 2, 37, 2),
    Sketcher.Constraint("Vertical", 1, 1, 40, 2),
    Sketcher.Constraint("Equal", 2, 6),
    Sketcher.Constraint("Equal", 6, 10),
    Sketcher.Constraint("Equal", 10, 12),
    Sketcher.Constraint("Equal", 12, 16),
    Sketcher.Constraint("Equal", 16, 18),
    Sketcher.Constraint("Radius", 1, 5.5),
    Sketcher.Constraint("Radius", 3, 0.65),
    Sketcher.Constraint("Distance", 0, 1.9),
    Sketcher.Constraint("Radius", 4, 2.012729),
    Sketcher.Constraint("DistanceY", -1, 1, 7, 3, 27.1538),
    Sketcher.Constraint("DistanceY", -1, 1, 14, 3, 23.8218),
    Sketcher.Constraint("DistanceX", -1, 1, 7, 2, 3.993899),
    Sketcher.Constraint("DistanceY", -1, 1, 10, 2, 26.030502),
    Sketcher.Constraint("DistanceX", -1, 1, 15, 2, 6.057202),
    Sketcher.Constraint("DistanceY", -1, 1, 28, 2, 18.8792),
    Sketcher.Constraint("DistanceX", 3, 3, -1, 1, 0.039059),
    Sketcher.Constraint("DistanceY", -1, 1, 3, 3, 28.094811),
    Sketcher.Constraint("DistanceX", -1, 1, 7, 3, 3.550962),
    Sketcher.Constraint("DistanceY", -1, 1, 8, 3, 25.942232),
    Sketcher.Constraint("DistanceY", -1, 1, 9, 3, 27.114741),
    Sketcher.Constraint("DistanceY", -1, 1, 13, 3, 24.54385),
    Sketcher.Constraint("DistanceY", -1, 1, 31, 3, 14.735732),
    Sketcher.Constraint("DistanceY", -1, 1, 38, 3, 15.132109),
    Sketcher.Constraint("DistanceY", -1, 1, 2, 2, 28.25991),
    Sketcher.Constraint("DistanceY", -1, 1, 6, 2, 26.982438),
    Sketcher.Constraint("DistanceX", -1, 1, 13, 2, 6.810958),
    Sketcher.Constraint("DistanceX", -1, 1, 14, 2, 6.70428),
    Sketcher.Constraint("DistanceY", -1, 1, 19, 2, 20.818558),
    Sketcher.Constraint("DistanceY", -1, 1, 21, 2, 21.51486),
    Sketcher.Constraint("DistanceY", -1, 1, 26, 2, 17.116109),
    Sketcher.Constraint("DistanceX", -1, 1, 19, 3, 7.169575),
])
pad2 = body.newObject("PartDesign::Pad", "Pad001")
pad2.Profile = sketch3
pad2.Length = 7

doc.recompute()
